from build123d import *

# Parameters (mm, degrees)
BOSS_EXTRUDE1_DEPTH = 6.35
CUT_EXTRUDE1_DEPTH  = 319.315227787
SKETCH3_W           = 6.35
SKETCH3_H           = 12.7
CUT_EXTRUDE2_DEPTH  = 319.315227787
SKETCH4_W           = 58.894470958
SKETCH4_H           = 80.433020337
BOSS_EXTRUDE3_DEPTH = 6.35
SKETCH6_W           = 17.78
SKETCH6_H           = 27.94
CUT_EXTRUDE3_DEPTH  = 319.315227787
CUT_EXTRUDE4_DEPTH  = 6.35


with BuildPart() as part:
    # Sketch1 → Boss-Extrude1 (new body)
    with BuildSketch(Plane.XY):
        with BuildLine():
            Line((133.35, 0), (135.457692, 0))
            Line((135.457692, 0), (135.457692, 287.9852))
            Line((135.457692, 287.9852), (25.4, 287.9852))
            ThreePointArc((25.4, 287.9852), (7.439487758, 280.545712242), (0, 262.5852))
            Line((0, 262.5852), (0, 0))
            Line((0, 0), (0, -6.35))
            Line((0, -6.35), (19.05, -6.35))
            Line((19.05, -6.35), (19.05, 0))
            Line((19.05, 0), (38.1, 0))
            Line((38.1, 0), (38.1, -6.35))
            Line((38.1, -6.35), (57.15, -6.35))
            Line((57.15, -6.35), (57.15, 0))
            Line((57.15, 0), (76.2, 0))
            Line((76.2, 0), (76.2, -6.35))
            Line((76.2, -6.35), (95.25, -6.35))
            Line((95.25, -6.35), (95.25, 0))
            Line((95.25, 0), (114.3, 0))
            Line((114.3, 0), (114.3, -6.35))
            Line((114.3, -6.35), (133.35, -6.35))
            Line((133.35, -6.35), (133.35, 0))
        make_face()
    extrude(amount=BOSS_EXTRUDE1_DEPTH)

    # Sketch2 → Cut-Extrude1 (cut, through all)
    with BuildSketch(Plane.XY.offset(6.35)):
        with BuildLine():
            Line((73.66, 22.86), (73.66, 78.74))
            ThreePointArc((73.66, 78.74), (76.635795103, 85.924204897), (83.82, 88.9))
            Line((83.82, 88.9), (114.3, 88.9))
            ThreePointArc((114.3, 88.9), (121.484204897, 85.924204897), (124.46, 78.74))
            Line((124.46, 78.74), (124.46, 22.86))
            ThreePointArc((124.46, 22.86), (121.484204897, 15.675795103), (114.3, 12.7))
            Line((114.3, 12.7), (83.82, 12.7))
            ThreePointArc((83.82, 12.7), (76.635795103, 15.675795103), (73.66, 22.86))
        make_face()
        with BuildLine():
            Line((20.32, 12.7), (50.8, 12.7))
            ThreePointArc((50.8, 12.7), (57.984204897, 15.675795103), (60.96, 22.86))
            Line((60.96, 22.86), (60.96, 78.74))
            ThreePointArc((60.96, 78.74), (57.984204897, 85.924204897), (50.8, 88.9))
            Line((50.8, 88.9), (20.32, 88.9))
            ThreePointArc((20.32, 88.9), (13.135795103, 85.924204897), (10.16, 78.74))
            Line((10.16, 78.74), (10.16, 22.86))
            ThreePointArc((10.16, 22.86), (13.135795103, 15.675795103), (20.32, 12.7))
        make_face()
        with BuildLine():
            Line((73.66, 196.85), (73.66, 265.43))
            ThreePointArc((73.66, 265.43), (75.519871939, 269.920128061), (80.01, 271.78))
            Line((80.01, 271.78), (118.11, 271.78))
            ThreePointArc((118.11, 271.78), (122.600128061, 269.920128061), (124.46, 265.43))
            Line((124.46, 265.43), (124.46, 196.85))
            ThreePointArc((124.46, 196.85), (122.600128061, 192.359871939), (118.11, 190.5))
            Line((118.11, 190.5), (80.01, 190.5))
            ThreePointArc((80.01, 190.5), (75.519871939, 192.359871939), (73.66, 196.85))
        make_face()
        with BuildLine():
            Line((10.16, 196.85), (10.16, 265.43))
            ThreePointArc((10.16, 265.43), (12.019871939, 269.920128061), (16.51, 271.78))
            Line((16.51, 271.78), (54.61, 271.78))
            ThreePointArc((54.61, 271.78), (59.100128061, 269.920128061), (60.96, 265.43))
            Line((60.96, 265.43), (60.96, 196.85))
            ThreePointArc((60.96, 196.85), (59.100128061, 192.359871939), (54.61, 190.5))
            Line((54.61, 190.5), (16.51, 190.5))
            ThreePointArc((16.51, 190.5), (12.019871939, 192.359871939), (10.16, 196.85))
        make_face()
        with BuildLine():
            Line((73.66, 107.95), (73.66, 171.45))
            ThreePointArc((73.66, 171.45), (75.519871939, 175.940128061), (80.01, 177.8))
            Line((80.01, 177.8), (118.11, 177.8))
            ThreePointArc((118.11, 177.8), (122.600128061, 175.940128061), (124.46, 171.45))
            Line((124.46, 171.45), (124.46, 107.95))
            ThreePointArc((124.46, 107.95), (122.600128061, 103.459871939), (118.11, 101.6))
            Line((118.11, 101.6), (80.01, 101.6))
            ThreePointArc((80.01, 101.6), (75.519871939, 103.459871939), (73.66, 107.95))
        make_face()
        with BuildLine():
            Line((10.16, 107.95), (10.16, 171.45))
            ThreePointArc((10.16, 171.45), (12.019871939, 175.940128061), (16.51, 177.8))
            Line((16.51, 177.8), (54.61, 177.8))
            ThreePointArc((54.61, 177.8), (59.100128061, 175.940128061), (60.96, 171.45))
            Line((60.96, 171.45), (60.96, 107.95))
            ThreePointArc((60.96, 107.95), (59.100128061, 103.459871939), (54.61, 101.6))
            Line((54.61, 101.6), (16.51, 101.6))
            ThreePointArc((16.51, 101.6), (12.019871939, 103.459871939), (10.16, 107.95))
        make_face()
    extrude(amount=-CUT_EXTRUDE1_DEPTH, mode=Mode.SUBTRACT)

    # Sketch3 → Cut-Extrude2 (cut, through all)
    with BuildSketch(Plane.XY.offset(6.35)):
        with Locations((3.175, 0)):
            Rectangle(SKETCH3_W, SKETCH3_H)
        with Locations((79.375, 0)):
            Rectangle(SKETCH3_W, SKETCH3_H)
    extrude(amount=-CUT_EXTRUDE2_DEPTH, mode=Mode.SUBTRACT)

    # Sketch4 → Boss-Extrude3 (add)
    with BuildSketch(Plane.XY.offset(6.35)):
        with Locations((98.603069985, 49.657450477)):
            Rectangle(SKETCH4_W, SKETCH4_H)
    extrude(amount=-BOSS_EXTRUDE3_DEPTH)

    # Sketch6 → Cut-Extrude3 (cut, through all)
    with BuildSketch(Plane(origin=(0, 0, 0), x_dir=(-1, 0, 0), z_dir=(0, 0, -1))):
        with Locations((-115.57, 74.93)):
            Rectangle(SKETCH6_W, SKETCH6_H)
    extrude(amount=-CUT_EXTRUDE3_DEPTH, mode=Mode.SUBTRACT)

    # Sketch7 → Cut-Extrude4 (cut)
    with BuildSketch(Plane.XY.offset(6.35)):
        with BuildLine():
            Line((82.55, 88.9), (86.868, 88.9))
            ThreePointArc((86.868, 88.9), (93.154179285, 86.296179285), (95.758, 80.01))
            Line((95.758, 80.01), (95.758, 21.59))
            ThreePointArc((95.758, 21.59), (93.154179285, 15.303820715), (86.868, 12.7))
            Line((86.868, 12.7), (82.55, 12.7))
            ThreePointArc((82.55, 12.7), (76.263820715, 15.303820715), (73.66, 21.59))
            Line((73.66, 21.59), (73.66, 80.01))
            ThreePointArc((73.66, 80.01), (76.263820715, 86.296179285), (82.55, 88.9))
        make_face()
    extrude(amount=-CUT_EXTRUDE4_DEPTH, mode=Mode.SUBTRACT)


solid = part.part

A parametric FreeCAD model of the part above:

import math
import FreeCAD as App
import Part
import Sketcher
Q = App.Units.Quantity


def add_polygon(sketch, points):
    """Adds a closed chain of lines whose ends are joined by coincident constraints."""
    first, n = sketch.GeometryCount, len(points)
    for a, b in zip(points, points[1:] + points[:1]):
        sketch.addGeometry(Part.LineSegment(App.Vector(*a, 0), App.Vector(*b, 0)), False)
    for i in range(n):
        sketch.addConstraint(Sketcher.Constraint("Coincident", first + i, 2, first + (i + 1) % n, 1))

doc = App.newDocument("Part")
body = doc.addObject("PartDesign::Body", "Body")

# Sketch on XY plane
sketch1 = body.newObject("Sketcher::SketchObject", "Sketch")
sketch1.AttachmentSupport = (doc.getObject("XY_Plane"), [""])
sketch1.MapMode = "FlatFace"
sketch1.addGeometry([
    Part.LineSegment(App.Vector(133.3, 0, 0), App.Vector(135.5, 0, 0)),  # 0
    Part.LineSegment(App.Vector(135.5, 0, 0), App.Vector(135.5, 288, 0)),  # 1
    Part.LineSegment(App.Vector(135.5, 288, 0), App.Vector(25.4, 288, 0)),  # 2
    Part.ArcOfCircle(Part.Circle(App.Vector(25.4, 262.6, 0), App.Vector(0, 0, 1), 25.4), math.radians(90), math.radians(180)),  # 3
    Part.LineSegment(App.Vector(0, 262.6, 0), App.Vector(0, -6.3, 0)),  # 4
    Part.LineSegment(App.Vector(0, -6.3, 0), App.Vector(19.1, -6.3, 0)),  # 5
    Part.LineSegment(App.Vector(19.1, -6.3, 0), App.Vector(19.1, 0, 0)),  # 6
    Part.LineSegment(App.Vector(19.1, 0, 0), App.Vector(38.1, 0, 0)),  # 7
    Part.LineSegment(App.Vector(38.1, 0, 0), App.Vector(38.1, -6.3, 0)),  # 8
    Part.LineSegment(App.Vector(38.1, -6.3, 0), App.Vector(57.1, -6.3, 0)),  # 9
    Part.LineSegment(App.Vector(57.1, -6.3, 0), App.Vector(57.1, 0, 0)),  # 10
    Part.LineSegment(App.Vector(57.1, 0, 0), App.Vector(76.2, 0, 0)),  # 11
    Part.LineSegment(App.Vector(76.2, 0, 0), App.Vector(76.2, -6.3, 0)),  # 12
    Part.LineSegment(App.Vector(76.2, -6.3, 0), App.Vector(95.2, -6.3, 0)),  # 13
    Part.LineSegment(App.Vector(95.2, -6.3, 0), App.Vector(95.2, 0, 0)),  # 14
    Part.LineSegment(App.Vector(95.2, 0, 0), App.Vector(114.3, 0, 0)),  # 15
    Part.LineSegment(App.Vector(114.3, 0, 0), App.Vector(114.3, -6.3, 0)),  # 16
    Part.LineSegment(App.Vector(114.3, -6.3, 0), App.Vector(133.3, -6.3, 0)),  # 17
    Part.LineSegment(App.Vector(133.3, -6.3, 0), App.Vector(133.3, 0, 0)),  # 18
], False)
sketch1.addConstraint([
    Sketcher.Constraint("Coincident", 0, 2, 1, 1),
    Sketcher.Constraint("Coincident", 1, 2, 2, 1),
    Sketcher.Constraint("Tangent", 2, 2, 3, 1),
    Sketcher.Constraint("Tangent", 3, 2, 4, 1),
    Sketcher.Constraint("Coincident", 4, 2, 5, 1),
    Sketcher.Constraint("Coincident", 5, 2, 6, 1),
    Sketcher.Constraint("Coincident", 6, 2, 7, 1),
    Sketcher.Constraint("Coincident", 7, 2, 8, 1),
    Sketcher.Constraint("Coincident", 8, 2, 9, 1),
    Sketcher.Constraint("Coincident", 9, 2, 10, 1),
    Sketcher.Constraint("Coincident", 10, 2, 11, 1),
    Sketcher.Constraint("Coincident", 11, 2, 12, 1),
    Sketcher.Constraint("Coincident", 12, 2, 13, 1),
    Sketcher.Constraint("Coincident", 13, 2, 14, 1),
    Sketcher.Constraint("Coincident", 14, 2, 15, 1),
    Sketcher.Constraint("Coincident", 15, 2, 16, 1),
    Sketcher.Constraint("Coincident", 16, 2, 17, 1),
    Sketcher.Constraint("Coincident", 17, 2, 18, 1),
    Sketcher.Constraint("Coincident", 18, 2, 0, 1),
    Sketcher.Constraint("Horizontal", 0),
    Sketcher.Constraint("Vertical", 1),
    Sketcher.Constraint("Horizontal", 2),
    Sketcher.Constraint("Vertical", 4),
    Sketcher.Constraint("Horizontal", 5),
    Sketcher.Constraint("Vertical", 6),
    Sketcher.Constraint("Horizontal", 7),
    Sketcher.Constraint("Vertical", 8),
    Sketcher.Constraint("Horizontal", 9),
    Sketcher.Constraint("Vertical", 10),
    Sketcher.Constraint("Horizontal", 11),
    Sketcher.Constraint("Vertical", 12),
    Sketcher.Constraint("Horizontal", 13),
    Sketcher.Constraint("Vertical", 14),
    Sketcher.Constraint("Horizontal", 15),
    Sketcher.Constraint("Vertical", 16),
    Sketcher.Constraint("Horizontal", 17),
    Sketcher.Constraint("Vertical", 18),
    Sketcher.Constraint("PointOnObject", 0, 2, -1),
    Sketcher.Constraint("PointOnObject", 3, 2, -2),
    Sketcher.Constraint("PointOnObject", 6, 2, -1),
    Sketcher.Constraint("PointOnObject", 10, 2, -1),
    Sketcher.Constraint("PointOnObject", 14, 2, -1),
    Sketcher.Constraint("Horizontal", 5, 2, 8, 2),
    Sketcher.Constraint("Horizontal", 9, 2, 12, 2),
    Sketcher.Constraint("Horizontal", 13, 2, 16, 2),
    Sketcher.Constraint("Equal", 5, 7),
    Sketcher.Constraint("Equal", 7, 9),
    Sketcher.Constraint("Equal", 9, 11),
    Sketcher.Constraint("Equal", 11, 13),
    Sketcher.Constraint("Equal", 13, 15),
    Sketcher.Constraint("Equal", 15, 17),
    Sketcher.Constraint("Radius", 3, Q("1 in")),
    Sketcher.Constraint("DistanceX", -1, 1, 11, 2, Q("3 in")),
    Sketcher.Constraint("DistanceY", 6, 1, 6, 2, Q("0.25 in")),
    Sketcher.Constraint("DistanceY", 1, 1, 1, 2, Q("11.338 in")),
    Sketcher.Constraint("DistanceX", 0, 1, 0, 2, Q("2.107692 mm")),
])
pad1 = body.newObject("PartDesign::Pad", "Pad")
pad1.Profile = sketch1
pad1.Length = Q("0.25 in")

# Sketch on XY plane
sketch2 = body.newObject("Sketcher::SketchObject", "Sketch001")
sketch2.AttachmentSupport = (doc.getObject("XY_Plane"), [""])
sketch2.MapMode = "FlatFace"
sketch2.AttachmentOffset = App.Placement(App.Vector(0, 0, 0.25 * 25.4), App.Rotation())
sketch2.addGeometry([
    Part.LineSegment(App.Vector(74, 79, 0), App.Vector(74, 23, 0)),  # 0
    Part.ArcOfCircle(Part.Circle(App.Vector(84, 23, 0), App.Vector(0, 0, 1), 10), math.radians(180), math.radians(270)),  # 1
    Part.LineSegment(App.Vector(84, 13, 0), App.Vector(114, 13, 0)),  # 2
    Part.ArcOfCircle(Part.Circle(App.Vector(114, 23, 0), App.Vector(0, 0, 1), 10), math.radians(-90), math.radians(0)),  # 3
    Part.LineSegment(App.Vector(124, 23, 0), App.Vector(124, 79, 0)),  # 4
    Part.ArcOfCircle(Part.Circle(App.Vector(114, 79, 0), App.Vector(0, 0, 1), 10), math.radians(0), math.radians(90)),  # 5
    Part.LineSegment(App.Vector(114, 89, 0), App.Vector(84, 89, 0)),  # 6
    Part.ArcOfCircle(Part.Circle(App.Vector(84, 79, 0), App.Vector(0, 0, 1), 10), math.radians(90), math.radians(180)),  # 7
    Part.LineSegment(App.Vector(20, 13, 0), App.Vector(51, 13, 0)),  # 8
    Part.ArcOfCircle(Part.Circle(App.Vector(51, 23, 0), App.Vector(0, 0, 1), 10), math.radians(-90), math.radians(0)),  # 9
    Part.LineSegment(App.Vector(61, 23, 0), App.Vector(61, 79, 0)),  # 10
    Part.ArcOfCircle(Part.Circle(App.Vector(51, 79, 0), App.Vector(0, 0, 1), 10), math.radians(0), math.radians(90)),  # 11
    Part.LineSegment(App.Vector(51, 89, 0), App.Vector(20, 89, 0)),  # 12
    Part.ArcOfCircle(Part.Circle(App.Vector(20, 79, 0), App.Vector(0, 0, 1), 10), math.radians(90), math.radians(180)),  # 13
    Part.LineSegment(App.Vector(10, 79, 0), App.Vector(10, 23, 0)),  # 14
    Part.ArcOfCircle(Part.Circle(App.Vector(20, 23, 0), App.Vector(0, 0, 1), 10), math.radians(180), math.radians(270)),  # 15
    Part.LineSegment(App.Vector(74, 265, 0), App.Vector(74, 197, 0)),  # 16
    Part.ArcOfCircle(Part.Circle(App.Vector(80, 197, 0), App.Vector(0, 0, 1), 6), math.radians(180), math.radians(270)),  # 17
    Part.LineSegment(App.Vector(80, 190, 0), App.Vector(118, 190, 0)),  # 18
    Part.ArcOfCircle(Part.Circle(App.Vector(118, 197, 0), App.Vector(0, 0, 1), 6), math.radians(-90), math.radians(0)),  # 19
    Part.LineSegment(App.Vector(124, 197, 0), App.Vector(124, 265, 0)),  # 20
    Part.ArcOfCircle(Part.Circle(App.Vector(118, 265, 0), App.Vector(0, 0, 1), 6), math.radians(0), math.radians(90)),  # 21
    Part.LineSegment(App.Vector(118, 272, 0), App.Vector(80, 272, 0)),  # 22
    Part.ArcOfCircle(Part.Circle(App.Vector(80, 265, 0), App.Vector(0, 0, 1), 6), math.radians(90), math.radians(180)),  # 23
    Part.LineSegment(App.Vector(10, 265, 0), App.Vector(10, 197, 0)),  # 24
    Part.ArcOfCircle(Part.Circle(App.Vector(17, 197, 0), App.Vector(0, 0, 1), 6), math.radians(180), math.radians(270)),  # 25
    Part.LineSegment(App.Vector(17, 190, 0), App.Vector(55, 190, 0)),  # 26
    Part.ArcOfCircle(Part.Circle(App.Vector(55, 197, 0), App.Vector(0, 0, 1), 6), math.radians(-90), math.radians(0)),  # 27
    Part.LineSegment(App.Vector(61, 197, 0), App.Vector(61, 265, 0)),  # 28
    Part.ArcOfCircle(Part.Circle(App.Vector(55, 265, 0), App.Vector(0, 0, 1), 6), math.radians(0), math.radians(90)),  # 29
    Part.LineSegment(App.Vector(55, 272, 0), App.Vector(17, 272, 0)),  # 30
    Part.ArcOfCircle(Part.Circle(App.Vector(17, 265, 0), App.Vector(0, 0, 1), 6), math.radians(90), math.radians(180)),  # 31
    Part.LineSegment(App.Vector(74, 171, 0), App.Vector(74, 108, 0)),  # 32
    Part.ArcOfCircle(Part.Circle(App.Vector(80, 108, 0), App.Vector(0, 0, 1), 6), math.radians(180), math.radians(270)),  # 33
    Part.LineSegment(App.Vector(80, 102, 0), App.Vector(118, 102, 0)),  # 34
    Part.ArcOfCircle(Part.Circle(App.Vector(118, 108, 0), App.Vector(0, 0, 1), 6), math.radians(-90), math.radians(0)),  # 35
    Part.LineSegment(App.Vector(124, 108, 0), App.Vector(124, 171, 0)),  # 36
    Part.ArcOfCircle(Part.Circle(App.Vector(118, 171, 0), App.Vector(0, 0, 1), 6), math.radians(0), math.radians(90)),  # 37
    Part.LineSegment(App.Vector(118, 178, 0), App.Vector(80, 178, 0)),  # 38
    Part.ArcOfCircle(Part.Circle(App.Vector(80, 171, 0), App.Vector(0, 0, 1), 6), math.radians(90), math.radians(180)),  # 39
    Part.LineSegment(App.Vector(10, 171, 0), App.Vector(10, 108, 0)),  # 40
    Part.ArcOfCircle(Part.Circle(App.Vector(17, 108, 0), App.Vector(0, 0, 1), 6), math.radians(180), math.radians(270)),  # 41
    Part.LineSegment(App.Vector(17, 102, 0), App.Vector(55, 102, 0)),  # 42
    Part.ArcOfCircle(Part.Circle(App.Vector(55, 108, 0), App.Vector(0, 0, 1), 6), math.radians(-90), math.radians(0)),  # 43
    Part.LineSegment(App.Vector(61, 108, 0), App.Vector(61, 171, 0)),  # 44
    Part.ArcOfCircle(Part.Circle(App.Vector(55, 171, 0), App.Vector(0, 0, 1), 6), math.radians(0), math.radians(90)),  # 45
    Part.LineSegment(App.Vector(55, 178, 0), App.Vector(17, 178, 0)),  # 46
    Part.ArcOfCircle(Part.Circle(App.Vector(17, 171, 0), App.Vector(0, 0, 1), 6), math.radians(90), math.radians(180)),  # 47
], False)
sketch2.addConstraint([
    Sketcher.Constraint("Tangent", 0, 2, 1, 1),
    Sketcher.Constraint("Tangent", 1, 2, 2, 1),
    Sketcher.Constraint("Tangent", 2, 2, 3, 1),
    Sketcher.Constraint("Tangent", 3, 2, 4, 1),
    Sketcher.Constraint("Tangent", 4, 2, 5, 1),
    Sketcher.Constraint("Tangent", 5, 2, 6, 1),
    Sketcher.Constraint("Tangent", 6, 2, 7, 1),
    Sketcher.Constraint("Tangent", 7, 2, 0, 1),
    Sketcher.Constraint("Tangent", 8, 2, 9, 1),
    Sketcher.Constraint("Tangent", 9, 2, 10, 1),
    Sketcher.Constraint("Tangent", 10, 2, 11, 1),
    Sketcher.Constraint("Tangent", 11, 2, 12, 1),
    Sketcher.Constraint("Tangent", 12, 2, 13, 1),
    Sketcher.Constraint("Tangent", 13, 2, 14, 1),
    Sketcher.Constraint("Tangent", 14, 2, 15, 1),
    Sketcher.Constraint("Tangent", 15, 2, 8, 1),
    Sketcher.Constraint("Tangent", 16, 2, 17, 1),
    Sketcher.Constraint("Tangent", 17, 2, 18, 1),
    Sketcher.Constraint("Tangent", 18, 2, 19, 1),
    Sketcher.Constraint("Tangent", 19, 2, 20, 1),
    Sketcher.Constraint("Tangent", 20, 2, 21, 1),
    Sketcher.Constraint("Tangent", 21, 2, 22, 1),
    Sketcher.Constraint("Tangent", 22, 2, 23, 1),
    Sketcher.Constraint("Tangent", 23, 2, 16, 1),
    Sketcher.Constraint("Tangent", 24, 2, 25, 1),
    Sketcher.Constraint("Tangent", 25, 2, 26, 1),
    Sketcher.Constraint("Tangent", 26, 2, 27, 1),
    Sketcher.Constraint("Tangent", 27, 2, 28, 1),
    Sketcher.Constraint("Tangent", 28, 2, 29, 1),
    Sketcher.Constraint("Tangent", 29, 2, 30, 1),
    Sketcher.Constraint("Tangent", 30, 2, 31, 1),
    Sketcher.Constraint("Tangent", 31, 2, 24, 1),
    Sketcher.Constraint("Tangent", 32, 2, 33, 1),
    Sketcher.Constraint("Tangent", 33, 2, 34, 1),
    Sketcher.Constraint("Tangent", 34, 2, 35, 1),
    Sketcher.Constraint("Tangent", 35, 2, 36, 1),
    Sketcher.Constraint("Tangent", 36, 2, 37, 1),
    Sketcher.Constraint("Tangent", 37, 2, 38, 1),
    Sketcher.Constraint("Tangent", 38, 2, 39, 1),
    Sketcher.Constraint("Tangent", 39, 2, 32, 1),
    Sketcher.Constraint("Tangent", 40, 2, 41, 1),
    Sketcher.Constraint("Tangent", 41, 2, 42, 1),
    Sketcher.Constraint("Tangent", 42, 2, 43, 1),
    Sketcher.Constraint("Tangent", 43, 2, 44, 1),
    Sketcher.Constraint("Tangent", 44, 2, 45, 1),
    Sketcher.Constraint("Tangent", 45, 2, 46, 1),
    Sketcher.Constraint("Tangent", 46, 2, 47, 1),
    Sketcher.Constraint("Tangent", 47, 2, 40, 1),
    Sketcher.Constraint("Vertical", 0),
    Sketcher.Constraint("Horizontal", 2),
    Sketcher.Constraint("Vertical", 4),
    Sketcher.Constraint("Horizontal", 6),
    Sketcher.Constraint("Horizontal", 8),
    Sketcher.Constraint("Vertical", 10),
    Sketcher.Constraint("Horizontal", 12),
    Sketcher.Constraint("Vertical", 14),
    Sketcher.Constraint("Vertical", 16),
    Sketcher.Constraint("Horizontal", 18),
    Sketcher.Constraint("Vertical", 20),
    Sketcher.Constraint("Horizontal", 22),
    Sketcher.Constraint("Vertical", 24),
    Sketcher.Constraint("Horizontal", 26),
    Sketcher.Constraint("Vertical", 28),
    Sketcher.Constraint("Horizontal", 30),
    Sketcher.Constraint("Vertical", 32),
    Sketcher.Constraint("Horizontal", 34),
    Sketcher.Constraint("Vertical", 36),
    Sketcher.Constraint("Horizontal", 38),
    Sketcher.Constraint("Vertical", 40),
    Sketcher.Constraint("Horizontal", 42),
    Sketcher.Constraint("Vertical", 44),
    Sketcher.Constraint("Horizontal", 46),
    Sketcher.Constraint("Equal", 1, 3),
    Sketcher.Constraint("Equal", 3, 5),
    Sketcher.Constraint("Equal", 5, 7),
    Sketcher.Constraint("Equal", 7, 9),
    Sketcher.Constraint("Equal", 9, 11),
    Sketcher.Constraint("Equal", 11, 13),
    Sketcher.Constraint("Equal", 13, 15),
    Sketcher.Constraint("Equal", 17, 19),
    Sketcher.Constraint("Equal", 19, 21),
    Sketcher.Constraint("Equal", 21, 23),
    Sketcher.Constraint("Equal", 23, 25),
    Sketcher.Constraint("Equal", 25, 27),
    Sketcher.Constraint("Equal", 27, 29),
    Sketcher.Constraint("Equal", 29, 31),
    Sketcher.Constraint("Equal", 31, 33),
    Sketcher.Constraint("Equal", 33, 35),
    Sketcher.Constraint("Equal", 35, 37),
    Sketcher.Constraint("Equal", 37, 39),
    Sketcher.Constraint("Equal", 39, 41),
    Sketcher.Constraint("Equal", 41, 43),
    Sketcher.Constraint("Equal", 43, 45),
    Sketcher.Constraint("Equal", 45, 47),
    Sketcher.Constraint("Horizontal", 3, 3, 9, 3),
    Sketcher.Constraint("Horizontal", 7, 3, 11, 3),
    Sketcher.Constraint("Horizontal", 19, 3, 25, 3),
    Sketcher.Constraint("Horizontal", 23, 3, 29, 3),
    Sketcher.Constraint("Horizontal", 35, 3, 41, 3),
    Sketcher.Constraint("Horizontal", 39, 3, 45, 3),
    Sketcher.Constraint("Vertical", 23, 3, 33, 3),
    Sketcher.Constraint("Vertical", 21, 3, 35, 3),
    Sketcher.Constraint("Vertical", 31, 3, 41, 3),
    Sketcher.Constraint("Vertical", 29, 3, 43, 3),
    Sketcher.Constraint("Vertical", 7, 2, 16, 2),
    Sketcher.Constraint("Vertical", 4, 2, 19, 2),
    Sketcher.Constraint("Vertical", 14, 2, 24, 2),
    Sketcher.Constraint("Vertical", 10, 2, 27, 2),
    Sketcher.Constraint("Equal", 6, 8),
    Sketcher.Constraint("Radius", 1, Q("0.4 in")),
    Sketcher.Constraint("Radius", 17, Q("0.25 in")),
    Sketcher.Constraint("DistanceX", 2, 1, 2, 2, Q("1.2 in")),
    Sketcher.Constraint("DistanceY", 0, 2, 0, 1, Q("2.2 in")),
    Sketcher.Constraint("DistanceY", 16, 2, 16, 1, Q("2.7 in")),
    Sketcher.Constraint("DistanceY", 32, 2, 32, 1, Q("2.5 in")),
    Sketcher.Constraint("DistanceX", -1, 1, 9, 3, Q("2 in")),
    Sketcher.Constraint("DistanceY", -1, 1, 33, 2, Q("4 in")),
    Sketcher.Constraint("DistanceX", -1, 1, 1, 3, Q("3.3 in")),
    Sketcher.Constraint("DistanceY", -1, 1, 1, 3, Q("0.9 in")),
    Sketcher.Constraint("DistanceY", -1, 1, 17, 2, Q("7.5 in")),
])
pocket1 = body.newObject("PartDesign::Pocket", "Pocket")
pocket1.Profile = sketch2
pocket1.Type = "ThroughAll"

# Sketch on XY plane
sketch3 = body.newObject("Sketcher::SketchObject", "Sketch002")
sketch3.AttachmentSupport = (doc.getObject("XY_Plane"), [""])
sketch3.MapMode = "FlatFace"
sketch3.AttachmentOffset = App.Placement(App.Vector(0, 0, 0.25 * 25.4), App.Rotation())
add_polygon(sketch3, [(0, 6), (0, -6), (6, -6), (6, 6)])  # lines 0-3
add_polygon(sketch3, [(76, 6), (76, -6), (83, -6), (83, 6)])  # lines 4-7
sketch3.addConstraint([
    Sketcher.Constraint("Vertical", 0),
    Sketcher.Constraint("Horizontal", 1),
    Sketcher.Constraint("Vertical", 2),
    Sketcher.Constraint("Horizontal", 3),
    Sketcher.Constraint("Vertical", 4),
    Sketcher.Constraint("Horizontal", 5),
    Sketcher.Constraint("Vertical", 6),
    Sketcher.Constraint("Horizontal", 7),
    Sketcher.Constraint("Symmetric", 0, 2, 3, 2, -1, 1),
    Sketcher.Constraint("Horizontal", 1, 2, 4, 2),
    Sketcher.Constraint("Horizontal", 3, 2, 6, 2),
    Sketcher.Constraint("Equal", 3, 5),
    Sketcher.Constraint("DistanceY", 0, 2, 0, 1, Q("0.5 in")),
    Sketcher.Constraint("DistanceX", -1, 1, 4, 2, Q("3 in")),
    Sketcher.Constraint("DistanceX", 1, 1, 1, 2, Q("0.25 in")),
])
pocket2 = body.newObject("PartDesign::Pocket", "Pocket001")
pocket2.Profile = sketch3
pocket2.Type = "ThroughAll"

# Sketch on XY plane
sketch4 = body.newObject("Sketcher::SketchObject", "Sketch003")
sketch4.AttachmentSupport = (doc.getObject("XY_Plane"), [""])
sketch4.MapMode = "FlatFace"
sketch4.AttachmentOffset = App.Placement(App.Vector(0, 0, 0.25 * 25.4), App.Rotation())
add_polygon(sketch4, [(69, 90), (69, 9), (128, 9), (128, 90)])  # lines 0-3
sketch4.addConstraint([
    Sketcher.Constraint("Vertical", 0),
    Sketcher.Constraint("Horizontal", 1),
    Sketcher.Constraint("Vertical", 2),
    Sketcher.Constraint("Horizontal", 3),
    Sketcher.Constraint("DistanceX", 1, 1, 1, 2, Q("58.894471 mm")),
    Sketcher.Constraint("DistanceY", 0, 2, 0, 1, Q("80.43302 mm")),
    Sketcher.Constraint("DistanceY", -1, 1, 0, 2, Q("9.44094 mm")),
    Sketcher.Constraint("DistanceX", -1, 1, 0, 2, Q("69.155835 mm")),
])
pad2 = body.newObject("PartDesign::Pad", "Pad001")
pad2.Profile = sketch4
pad2.Length = Q("0.25 in")
pad2.Reversed = True

# Sketch on XY plane
sketch5 = body.newObject("Sketcher::SketchObject", "Sketch004")
sketch5.AttachmentSupport = (doc.getObject("XY_Plane"), [""])
sketch5.MapMode = "FlatFace"
add_polygon(sketch5, [(124, 89), (124, 61), (107, 61), (107, 89)])  # lines 0-3
sketch5.addConstraint([
    Sketcher.Constraint("Vertical", 0),
    Sketcher.Constraint("Horizontal", 1),
    Sketcher.Constraint("Vertical", 2),
    Sketcher.Constraint("Horizontal", 3),
    Sketcher.Constraint("DistanceX", 1, 2, 1, 1, Q("0.7 in")),
    Sketcher.Constraint("DistanceY", 0, 2, 0, 1, Q("1.1 in")),
    Sketcher.Constraint("DistanceX", -1, 1, 0, 2, Q("4.9 in")),
    Sketcher.Constraint("DistanceY", -1, 1, 0, 2, Q("2.4 in")),
])
pocket3 = body.newObject("PartDesign::Pocket", "Pocket002")
pocket3.Profile = sketch5
pocket3.Type = "ThroughAll"
pocket3.Reversed = True

# Sketch on XY plane
sketch6 = body.newObject("Sketcher::SketchObject", "Sketch005")
sketch6.AttachmentSupport = (doc.getObject("XY_Plane"), [""])
sketch6.MapMode = "FlatFace"
sketch6.AttachmentOffset = App.Placement(App.Vector(0, 0, 0.25 * 25.4), App.Rotation())
sketch6.addGeometry([
    Part.LineSegment(App.Vector(86.9, 88.9, 0), App.Vector(82.5, 88.9, 0)),  # 0
    Part.ArcOfCircle(Part.Circle(App.Vector(82.5, 80, 0), App.Vector(0, 0, 1), 8.9), math.radians(90), math.radians(180)),  # 1
    Part.LineSegment(App.Vector(73.7, 80, 0), App.Vector(73.7, 21.6, 0)),  # 2
    Part.ArcOfCircle(Part.Circle(App.Vector(82.5, 21.6, 0), App.Vector(0, 0, 1), 8.9), math.radians(180), math.radians(270)),  # 3
    Part.LineSegment(App.Vector(82.5, 12.7, 0), App.Vector(86.9, 12.7, 0)),  # 4
    Part.ArcOfCircle(Part.Circle(App.Vector(86.9, 21.6, 0), App.Vector(0, 0, 1), 8.9), math.radians(-90), math.radians(0)),  # 5
    Part.LineSegment(App.Vector(95.8, 21.6, 0), App.Vector(95.8, 80, 0)),  # 6
    Part.ArcOfCircle(Part.Circle(App.Vector(86.9, 80, 0), App.Vector(0, 0, 1), 8.9), math.radians(0), math.radians(90)),  # 7
], False)
sketch6.addConstraint([
    Sketcher.Constraint("Tangent", 0, 2, 1, 1),
    Sketcher.Constraint("Tangent", 1, 2, 2, 1),
    Sketcher.Constraint("Tangent", 2, 2, 3, 1),
    Sketcher.Constraint("Tangent", 3, 2, 4, 1),
    Sketcher.Constraint("Tangent", 4, 2, 5, 1),
    Sketcher.Constraint("Tangent", 5, 2, 6, 1),
    Sketcher.Constraint("Tangent", 6, 2, 7, 1),
    Sketcher.Constraint("Tangent", 7, 2, 0, 1),
    Sketcher.Constraint("Horizontal", 0),
    Sketcher.Constraint("Vertical", 2),
    Sketcher.Constraint("Horizontal", 4),
    Sketcher.Constraint("Vertical", 6),
    Sketcher.Constraint("Equal", 1, 3),
    Sketcher.Constraint("Equal", 3, 5),
    Sketcher.Constraint("Equal", 5, 7),
    Sketcher.Constraint("Radius", 1, Q("0.35 in")),
    Sketcher.Constraint("DistanceY", 2, 2, 2, 1, Q("2.3 in")),
    Sketcher.Constraint("DistanceX", 0, 2, 0, 1, Q("0.17 in")),
    Sketcher.Constraint("DistanceY", -1, 1, 0, 2, Q("3.5 in")),
    Sketcher.Constraint("DistanceX", -1, 1, 1, 2, Q("2.9 in")),
])
pocket4 = body.newObject("PartDesign::Pocket", "Pocket003")
pocket4.Profile = sketch6
pocket4.Length = Q("0.25 in")

doc.recompute()
